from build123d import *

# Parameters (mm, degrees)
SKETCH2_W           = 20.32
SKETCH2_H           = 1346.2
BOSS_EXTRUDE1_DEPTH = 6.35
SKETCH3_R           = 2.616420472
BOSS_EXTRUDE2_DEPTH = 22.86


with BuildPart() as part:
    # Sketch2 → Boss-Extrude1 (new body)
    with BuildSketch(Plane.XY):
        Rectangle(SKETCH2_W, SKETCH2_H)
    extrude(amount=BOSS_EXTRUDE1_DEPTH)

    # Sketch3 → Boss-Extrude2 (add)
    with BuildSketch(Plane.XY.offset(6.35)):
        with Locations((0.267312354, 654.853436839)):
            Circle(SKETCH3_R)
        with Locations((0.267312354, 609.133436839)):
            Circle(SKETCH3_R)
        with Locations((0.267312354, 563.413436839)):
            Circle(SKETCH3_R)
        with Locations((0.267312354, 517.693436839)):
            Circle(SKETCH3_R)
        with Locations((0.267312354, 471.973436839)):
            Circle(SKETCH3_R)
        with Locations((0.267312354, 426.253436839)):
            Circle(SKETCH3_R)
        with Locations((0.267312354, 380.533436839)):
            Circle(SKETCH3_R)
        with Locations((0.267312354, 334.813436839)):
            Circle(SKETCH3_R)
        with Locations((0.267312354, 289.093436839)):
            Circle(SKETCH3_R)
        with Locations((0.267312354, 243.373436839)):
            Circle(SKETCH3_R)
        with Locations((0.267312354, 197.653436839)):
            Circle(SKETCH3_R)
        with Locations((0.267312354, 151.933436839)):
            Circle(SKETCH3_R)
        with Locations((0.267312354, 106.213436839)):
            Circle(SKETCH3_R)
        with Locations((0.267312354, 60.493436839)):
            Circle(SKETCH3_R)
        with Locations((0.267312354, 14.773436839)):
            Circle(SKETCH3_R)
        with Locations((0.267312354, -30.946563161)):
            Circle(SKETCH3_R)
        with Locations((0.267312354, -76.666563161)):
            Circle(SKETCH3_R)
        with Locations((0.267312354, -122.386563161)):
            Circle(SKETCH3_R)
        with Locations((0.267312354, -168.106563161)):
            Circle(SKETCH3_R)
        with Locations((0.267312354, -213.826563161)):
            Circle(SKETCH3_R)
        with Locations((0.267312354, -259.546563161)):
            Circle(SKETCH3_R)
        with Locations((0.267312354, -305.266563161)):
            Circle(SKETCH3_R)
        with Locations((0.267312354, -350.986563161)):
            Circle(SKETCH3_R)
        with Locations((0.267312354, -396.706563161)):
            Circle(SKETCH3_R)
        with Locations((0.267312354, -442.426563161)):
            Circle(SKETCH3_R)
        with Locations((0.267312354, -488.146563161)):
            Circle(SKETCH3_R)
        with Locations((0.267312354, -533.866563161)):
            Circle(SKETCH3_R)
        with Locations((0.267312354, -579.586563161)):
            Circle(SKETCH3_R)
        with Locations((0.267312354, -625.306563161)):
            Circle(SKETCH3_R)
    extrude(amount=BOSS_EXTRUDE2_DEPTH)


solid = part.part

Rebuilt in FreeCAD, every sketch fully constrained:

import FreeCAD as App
import Part
import Sketcher

V = App.Vector
Q = App.Units.Quantity


def add_polygon(sketch, points):
    """Adds a closed chain of lines whose ends are joined by coincident constraints."""
    first, n = sketch.GeometryCount, len(points)
    for a, b in zip(points, points[1:] + points[:1]):
        sketch.addGeometry(Part.LineSegment(App.Vector(*a, 0), App.Vector(*b, 0)), False)
    for i in range(n):
        sketch.addConstraint(Sketcher.Constraint("Coincident", first + i, 2, first + (i + 1) % n, 1))

doc = App.newDocument("Part")
body = doc.addObject("PartDesign::Body", "Body")

# Sketch on XY plane
sketch1 = body.newObject("Sketcher::SketchObject", "Sketch")
sketch1.AttachmentSupport = (doc.getObject("XY_Plane"), [""])
sketch1.MapMode = "FlatFace"
add_polygon(sketch1, [(-10, 673), (-10, -673), (10, -673), (10, 673)])  # lines 0-3
sketch1.addConstraint([
    Sketcher.Constraint("Vertical", 0),
    Sketcher.Constraint("Horizontal", 1),
    Sketcher.Constraint("Vertical", 2),
    Sketcher.Constraint("Horizontal", 3),
    Sketcher.Constraint("Symmetric", 0, 2, 2, 2, -1, 1),
    Sketcher.Constraint("DistanceY", 0, 2, 0, 1, Q("53 in")),
    Sketcher.Constraint("DistanceX", 1, 1, 1, 2, Q("0.8 in")),
])
pad1 = body.newObject("PartDesign::Pad", "Pad")
pad1.Profile = sketch1
pad1.Length = Q("0.25 in")

# Sketch on XY plane
sketch2 = body.newObject("Sketcher::SketchObject", "Sketch001")
sketch2.AttachmentSupport = (doc.getObject("XY_Plane"), [""])
sketch2.MapMode = "FlatFace"
sketch2.AttachmentOffset = App.Placement(V(0, 0, 0.25 * 25.4), App.Rotation())
sketch2.addGeometry([
    Part.Circle(V(0.3, 654.9, 0), V(0, 0, 1), 2.6),  # 0
    Part.Circle(V(0.3, 609.1, 0), V(0, 0, 1), 2.6),  # 1
    Part.Circle(V(0.3, 563.4, 0), V(0, 0, 1), 2.6),  # 2
    Part.Circle(V(0.3, 517.7, 0), V(0, 0, 1), 2.6),  # 3
    Part.Circle(V(0.3, 472, 0), V(0, 0, 1), 2.6),  # 4
    Part.Circle(V(0.3, 426.3, 0), V(0, 0, 1), 2.6),  # 5
    Part.Circle(V(0.3, 380.5, 0), V(0, 0, 1), 2.6),  # 6
    Part.Circle(V(0.3, 334.8, 0), V(0, 0, 1), 2.6),  # 7
    Part.Circle(V(0.3, 289.1, 0), V(0, 0, 1), 2.6),  # 8
    Part.Circle(V(0.3, 243.4, 0), V(0, 0, 1), 2.6),  # 9
    Part.Circle(V(0.3, 197.7, 0), V(0, 0, 1), 2.6),  # 10
    Part.Circle(V(0.3, 151.9, 0), V(0, 0, 1), 2.6),  # 11
    Part.Circle(V(0.3, 106.2, 0), V(0, 0, 1), 2.6),  # 12
    Part.Circle(V(0.3, 60.5, 0), V(0, 0, 1), 2.6),  # 13
    Part.Circle(V(0.3, 14.8, 0), V(0, 0, 1), 2.6),  # 14
    Part.Circle(V(0.3, -30.9, 0), V(0, 0, 1), 2.6),  # 15
    Part.Circle(V(0.3, -76.7, 0), V(0, 0, 1), 2.6),  # 16
    Part.Circle(V(0.3, -122.4, 0), V(0, 0, 1), 2.6),  # 17
    Part.Circle(V(0.3, -168.1, 0), V(0, 0, 1), 2.6),  # 18
    Part.Circle(V(0.3, -213.8, 0), V(0, 0, 1), 2.6),  # 19
    Part.Circle(V(0.3, -259.5, 0), V(0, 0, 1), 2.6),  # 20
    Part.Circle(V(0.3, -305.3, 0), V(0, 0, 1), 2.6),  # 21
    Part.Circle(V(0.3, -351, 0), V(0, 0, 1), 2.6),  # 22
    Part.Circle(V(0.3, -396.7, 0), V(0, 0, 1), 2.6),  # 23
    Part.Circle(V(0.3, -442.4, 0), V(0, 0, 1), 2.6),  # 24
    Part.Circle(V(0.3, -488.1, 0), V(0, 0, 1), 2.6),  # 25
    Part.Circle(V(0.3, -533.9, 0), V(0, 0, 1), 2.6),  # 26
    Part.Circle(V(0.3, -579.6, 0), V(0, 0, 1), 2.6),  # 27
    Part.Circle(V(0.3, -625.3, 0), V(0, 0, 1), 2.6),  # 28
], False)
sketch2.addConstraint([
    Sketcher.Constraint("Equal", 0, 1),
    Sketcher.Constraint("Equal", 1, 2),
    Sketcher.Constraint("Equal", 2, 3),
    Sketcher.Constraint("Equal", 3, 4),
    Sketcher.Constraint("Equal", 4, 5),
    Sketcher.Constraint("Equal", 5, 6),
    Sketcher.Constraint("Equal", 6, 7),
    Sketcher.Constraint("Equal", 7, 8),
    Sketcher.Constraint("Equal", 8, 9),
    Sketcher.Constraint("Equal", 9, 10),
    Sketcher.Constraint("Equal", 10, 11),
    Sketcher.Constraint("Equal", 11, 12),
    Sketcher.Constraint("Equal", 12, 13),
    Sketcher.Constraint("Equal", 13, 14),
    Sketcher.Constraint("Equal", 14, 15),
    Sketcher.Constraint("Equal", 15, 16),
    Sketcher.Constraint("Equal", 16, 17),
    Sketcher.Constraint("Equal", 17, 18),
    Sketcher.Constraint("Equal", 18, 19),
    Sketcher.Constraint("Equal", 19, 20),
    Sketcher.Constraint("Equal", 20, 21),
    Sketcher.Constraint("Equal", 21, 22),
    Sketcher.Constraint("Equal", 22, 23),
    Sketcher.Constraint("Equal", 23, 24),
    Sketcher.Constraint("Equal", 24, 25),
    Sketcher.Constraint("Equal", 25, 26),
    Sketcher.Constraint("Equal", 26, 27),
    Sketcher.Constraint("Equal", 27, 28),
    Sketcher.Constraint("Vertical", 0, 3, 1, 3),
    Sketcher.Constraint("Vertical", 1, 3, 2, 3),
    Sketcher.Constraint("Vertical", 2, 3, 3, 3),
    Sketcher.Constraint("Vertical", 3, 3, 4, 3),
    Sketcher.Constraint("Vertical", 4, 3, 5, 3),
    Sketcher.Constraint("Vertical", 5, 3, 6, 3),
    Sketcher.Constraint("Vertical", 6, 3, 7, 3),
    Sketcher.Constraint("Vertical", 7, 3, 8, 3),
    Sketcher.Constraint("Vertical", 8, 3, 9, 3),
    Sketcher.Constraint("Vertical", 9, 3, 10, 3),
    Sketcher.Constraint("Vertical", 10, 3, 11, 3),
    Sketcher.Constraint("Vertical", 11, 3, 12, 3),
    Sketcher.Constraint("Vertical", 12, 3, 13, 3),
    Sketcher.Constraint("Vertical", 13, 3, 14, 3),
    Sketcher.Constraint("Vertical", 14, 3, 15, 3),
    Sketcher.Constraint("Vertical", 15, 3, 16, 3),
    Sketcher.Constraint("Vertical", 16, 3, 17, 3),
    Sketcher.Constraint("Vertical", 17, 3, 18, 3),
    Sketcher.Constraint("Vertical", 18, 3, 19, 3),
    Sketcher.Constraint("Vertical", 19, 3, 20, 3),
    Sketcher.Constraint("Vertical", 20, 3, 21, 3),
    Sketcher.Constraint("Vertical", 21, 3, 22, 3),
    Sketcher.Constraint("Vertical", 22, 3, 23, 3),
    Sketcher.Constraint("Vertical", 23, 3, 24, 3),
    Sketcher.Constraint("Vertical", 24, 3, 25, 3),
    Sketcher.Constraint("Vertical", 25, 3, 26, 3),
    Sketcher.Constraint("Vertical", 26, 3, 27, 3),
    Sketcher.Constraint("Vertical", 27, 3, 28, 3),
    Sketcher.Constraint("DistanceY", 5, 3, 0, 3, Q("9 in")),
    Sketcher.Constraint("DistanceY", 6, 3, 1, 3, Q("9 in")),
    Sketcher.Constraint("DistanceY", 7, 3, 2, 3, Q("9 in")),
    Sketcher.Constraint("DistanceY", 8, 3, 3, 3, Q("9 in")),
    Sketcher.Constraint("DistanceY", 9, 3, 4, 3, Q("9 in")),
    Sketcher.Constraint("DistanceY", 10, 3, 5, 3, Q("9 in")),
    Sketcher.Constraint("DistanceY", 11, 3, 6, 3, Q("9 in")),
    Sketcher.Constraint("DistanceY", 12, 3, 7, 3, Q("9 in")),
    Sketcher.Constraint("DistanceY", 13, 3, 8, 3, Q("9 in")),
    Sketcher.Constraint("DistanceY", 14, 3, 9, 3, Q("9 in")),
    Sketcher.Constraint("DistanceY", 15, 3, 10, 3, Q("9 in")),
    Sketcher.Constraint("DistanceY", 16, 3, 11, 3, Q("9 in")),
    Sketcher.Constraint("DistanceY", 17, 3, 12, 3, Q("9 in")),
    Sketcher.Constraint("DistanceY", 18, 3, 13, 3, Q("9 in")),
    Sketcher.Constraint("DistanceY", 19, 3, 14, 3, Q("9 in")),
    Sketcher.Constraint("DistanceY", 20, 3, 15, 3, Q("9 in")),
    Sketcher.Constraint("DistanceY", 21, 3, 16, 3, Q("9 in")),
    Sketcher.Constraint("DistanceY", 22, 3, 17, 3, Q("9 in")),
    Sketcher.Constraint("DistanceY", 23, 3, 18, 3, Q("9 in")),
    Sketcher.Constraint("DistanceY", 24, 3, 19, 3, Q("9 in")),
    Sketcher.Constraint("DistanceY", 25, 3, 20, 3, Q("9 in")),
    Sketcher.Constraint("DistanceY", 26, 3, 21, 3, Q("9 in")),
    Sketcher.Constraint("DistanceY", 27, 3, 22, 3, Q("9 in")),
    Sketcher.Constraint("DistanceY", 28, 3, 23, 3, Q("9 in")),
    Sketcher.Constraint("DistanceY", 1, 3, 0, 3, Q("1.8 in")),
    Sketcher.Constraint("DistanceY", 2, 3, 1, 3, Q("1.8 in")),
    Sketcher.Constraint("DistanceY", 3, 3, 2, 3, Q("1.8 in")),
    Sketcher.Constraint("DistanceY", 4, 3, 3, 3, Q("1.8 in")),
    Sketcher.Constraint("Diameter", 0, 5.232841),
    Sketcher.Constraint("DistanceX", -1, 1, 0, 3, 0.267312),
    Sketcher.Constraint("DistanceY", -1, 1, 0, 3, 654.853437),
])
pad2 = body.newObject("PartDesign::Pad", "Pad001")
pad2.Profile = sketch2
pad2.Length = Q("0.9 in")

doc.recompute()
